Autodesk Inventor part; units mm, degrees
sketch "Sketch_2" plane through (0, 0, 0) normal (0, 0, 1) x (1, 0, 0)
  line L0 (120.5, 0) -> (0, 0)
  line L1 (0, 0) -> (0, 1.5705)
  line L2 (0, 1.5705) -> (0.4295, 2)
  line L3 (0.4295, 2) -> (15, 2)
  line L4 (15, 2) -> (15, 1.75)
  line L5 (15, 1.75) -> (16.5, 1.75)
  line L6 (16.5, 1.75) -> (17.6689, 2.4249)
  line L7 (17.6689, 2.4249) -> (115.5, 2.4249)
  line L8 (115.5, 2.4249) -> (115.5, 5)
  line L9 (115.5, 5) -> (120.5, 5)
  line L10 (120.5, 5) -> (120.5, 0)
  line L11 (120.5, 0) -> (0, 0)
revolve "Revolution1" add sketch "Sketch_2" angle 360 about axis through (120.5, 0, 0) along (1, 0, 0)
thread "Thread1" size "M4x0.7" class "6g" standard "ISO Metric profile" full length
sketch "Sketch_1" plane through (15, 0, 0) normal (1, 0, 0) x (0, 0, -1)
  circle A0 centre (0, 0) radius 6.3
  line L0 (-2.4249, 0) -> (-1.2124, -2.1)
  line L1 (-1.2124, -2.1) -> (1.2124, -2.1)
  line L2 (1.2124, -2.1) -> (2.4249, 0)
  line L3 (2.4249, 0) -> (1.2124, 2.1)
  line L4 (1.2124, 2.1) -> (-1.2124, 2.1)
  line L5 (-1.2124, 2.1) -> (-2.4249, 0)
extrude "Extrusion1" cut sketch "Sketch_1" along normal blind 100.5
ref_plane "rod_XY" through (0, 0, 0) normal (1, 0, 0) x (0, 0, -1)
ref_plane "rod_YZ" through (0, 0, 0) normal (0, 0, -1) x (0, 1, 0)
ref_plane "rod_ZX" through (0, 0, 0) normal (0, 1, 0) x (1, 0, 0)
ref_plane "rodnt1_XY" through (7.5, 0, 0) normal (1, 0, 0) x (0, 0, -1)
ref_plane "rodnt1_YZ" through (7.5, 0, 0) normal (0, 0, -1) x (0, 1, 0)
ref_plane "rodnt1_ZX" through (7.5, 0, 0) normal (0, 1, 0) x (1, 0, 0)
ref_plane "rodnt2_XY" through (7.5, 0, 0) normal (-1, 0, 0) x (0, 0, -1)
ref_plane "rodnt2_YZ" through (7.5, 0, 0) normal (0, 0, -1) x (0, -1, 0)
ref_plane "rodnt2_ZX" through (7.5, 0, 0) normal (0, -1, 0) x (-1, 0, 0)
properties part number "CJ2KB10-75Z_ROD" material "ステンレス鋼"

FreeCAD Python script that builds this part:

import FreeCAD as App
import Part
import Sketcher
from FreeCAD import Vector
Q = App.Units.Quantity


def add_polygon(sketch, points):
    """Adds a closed chain of lines whose ends are joined by coincident constraints."""
    first, n = sketch.GeometryCount, len(points)
    for a, b in zip(points, points[1:] + points[:1]):
        sketch.addGeometry(Part.LineSegment(App.Vector(*a, 0), App.Vector(*b, 0)), False)
    for i in range(n):
        sketch.addConstraint(Sketcher.Constraint("Coincident", first + i, 2, first + (i + 1) % n, 1))

doc = App.newDocument("Part")
body = doc.addObject("PartDesign::Body", "Body")

# Sketch on XY plane
sketch1 = body.newObject("Sketcher::SketchObject", "Sketch")
sketch1.AttachmentSupport = (doc.getObject("XY_Plane"), [""])
sketch1.MapMode = "FlatFace"
add_polygon(sketch1, [(0, 0), (120.5, 0), (120.5, 5), (115.5, 5), (115.5, 2.42), (17.67, 2.42), (16.5, 1.75), (15, 1.75), (15, 2), (0.43, 2), (0, 1.57)])  # lines 0-10
sketch1.addConstraint(Sketcher.Constraint("Horizontal", 0))
sketch1.addConstraint(Sketcher.Constraint("Vertical", 1))
sketch1.addConstraint(Sketcher.Constraint("Horizontal", 2))
sketch1.addConstraint(Sketcher.Constraint("Vertical", 3))
sketch1.addConstraint(Sketcher.Constraint("Horizontal", 4))
sketch1.addConstraint(Sketcher.Constraint("Horizontal", 6))
sketch1.addConstraint(Sketcher.Constraint("Vertical", 7))
sketch1.addConstraint(Sketcher.Constraint("Horizontal", 8))
sketch1.addConstraint(Sketcher.Constraint("Vertical", 10))
sketch1.addConstraint(Sketcher.Constraint("Coincident", 10, 2, -1, 1))
sketch1.addConstraint(Sketcher.Constraint("Equal", 2, 1))
sketch1.addConstraint(Sketcher.Constraint("DistanceX", 2, 2, 2, 1, 5.0))
sketch1.addConstraint(Sketcher.Constraint("Angle", 9, Q("-135 deg")))
sketch1.addConstraint(Sketcher.Constraint("DistanceX", 0, 1, 0, 2, 120.5))
sketch1.addConstraint(Sketcher.Constraint("DistanceX", 6, 2, 6, 1, 1.5))
sketch1.addConstraint(Sketcher.Constraint("DistanceX", -1, 1, 6, 2, 15.0))
sketch1.addConstraint(Sketcher.Constraint("DistanceY", -1, 1, 7, 2, 2.0))
sketch1.addConstraint(Sketcher.Constraint("DistanceY", 7, 1, 7, 2, 0.25))
sketch1.addConstraint(Sketcher.Constraint("DistanceX", 4, 2, 4, 1, 97.831))
sketch1.addConstraint(Sketcher.Constraint("DistanceY", 3, 2, 3, 1, 2.575))
sketch1.addConstraint(Sketcher.Constraint("DistanceX", 8, 2, 8, 1, 14.5705))
revolution = body.newObject("PartDesign::Revolution", "Revolution")
revolution.Profile = sketch1
revolution.ReferenceAxis = (sketch1, ["H_Axis"])
revolution.Angle = 360

# Sketch on YZ plane
sketch2 = body.newObject("Sketcher::SketchObject", "Sketch001")
sketch2.AttachmentSupport = (doc.getObject("YZ_Plane"), [""])
sketch2.MapMode = "FlatFace"
sketch2.AttachmentOffset = App.Placement(Vector(0, 0, 15), App.Rotation())
sketch2.addGeometry(Part.Circle(Vector(0, 0, 0), Vector(0, 0, 1), 6.3), False)  # 0
add_polygon(sketch2, [(-2.1, 1.2), (0, 2.4), (2.1, 1.2), (2.1, -1.2), (0, -2.4), (-2.1, -1.2)])  # lines 1-6
sketch2.addConstraint(Sketcher.Constraint("Vertical", 3))
sketch2.addConstraint(Sketcher.Constraint("Vertical", 6))
sketch2.addConstraint(Sketcher.Constraint("Coincident", 0, 3, -1, 1))
sketch2.addConstraint(Sketcher.Constraint("Symmetric", 1, 2, 4, 2, -1, 1))
sketch2.addConstraint(Sketcher.Constraint("Symmetric", 2, 2, 5, 2, -1, 1))
sketch2.addConstraint(Sketcher.Constraint("PointOnObject", 1, 2, -2))
sketch2.addConstraint(Sketcher.Constraint("Parallel", 1, 4))
sketch2.addConstraint(Sketcher.Constraint("Horizontal", 3, 2, 5, 2))
sketch2.addConstraint(Sketcher.Constraint("Diameter", 0, 12.6))
sketch2.addConstraint(Sketcher.Constraint("DistanceX", -1, 1, 2, 2, 2.1))
sketch2.addConstraint(Sketcher.Constraint("Distance", 1, 2.425))
sketch2.addConstraint(Sketcher.Constraint("DistanceY", 3, 2, 3, 1, 2.4248))
pocket1 = body.newObject("PartDesign::Pocket", "Pocket")
pocket1.Profile = sketch2
pocket1.Length = 100.5
pocket1.Reversed = True

doc.recompute()
